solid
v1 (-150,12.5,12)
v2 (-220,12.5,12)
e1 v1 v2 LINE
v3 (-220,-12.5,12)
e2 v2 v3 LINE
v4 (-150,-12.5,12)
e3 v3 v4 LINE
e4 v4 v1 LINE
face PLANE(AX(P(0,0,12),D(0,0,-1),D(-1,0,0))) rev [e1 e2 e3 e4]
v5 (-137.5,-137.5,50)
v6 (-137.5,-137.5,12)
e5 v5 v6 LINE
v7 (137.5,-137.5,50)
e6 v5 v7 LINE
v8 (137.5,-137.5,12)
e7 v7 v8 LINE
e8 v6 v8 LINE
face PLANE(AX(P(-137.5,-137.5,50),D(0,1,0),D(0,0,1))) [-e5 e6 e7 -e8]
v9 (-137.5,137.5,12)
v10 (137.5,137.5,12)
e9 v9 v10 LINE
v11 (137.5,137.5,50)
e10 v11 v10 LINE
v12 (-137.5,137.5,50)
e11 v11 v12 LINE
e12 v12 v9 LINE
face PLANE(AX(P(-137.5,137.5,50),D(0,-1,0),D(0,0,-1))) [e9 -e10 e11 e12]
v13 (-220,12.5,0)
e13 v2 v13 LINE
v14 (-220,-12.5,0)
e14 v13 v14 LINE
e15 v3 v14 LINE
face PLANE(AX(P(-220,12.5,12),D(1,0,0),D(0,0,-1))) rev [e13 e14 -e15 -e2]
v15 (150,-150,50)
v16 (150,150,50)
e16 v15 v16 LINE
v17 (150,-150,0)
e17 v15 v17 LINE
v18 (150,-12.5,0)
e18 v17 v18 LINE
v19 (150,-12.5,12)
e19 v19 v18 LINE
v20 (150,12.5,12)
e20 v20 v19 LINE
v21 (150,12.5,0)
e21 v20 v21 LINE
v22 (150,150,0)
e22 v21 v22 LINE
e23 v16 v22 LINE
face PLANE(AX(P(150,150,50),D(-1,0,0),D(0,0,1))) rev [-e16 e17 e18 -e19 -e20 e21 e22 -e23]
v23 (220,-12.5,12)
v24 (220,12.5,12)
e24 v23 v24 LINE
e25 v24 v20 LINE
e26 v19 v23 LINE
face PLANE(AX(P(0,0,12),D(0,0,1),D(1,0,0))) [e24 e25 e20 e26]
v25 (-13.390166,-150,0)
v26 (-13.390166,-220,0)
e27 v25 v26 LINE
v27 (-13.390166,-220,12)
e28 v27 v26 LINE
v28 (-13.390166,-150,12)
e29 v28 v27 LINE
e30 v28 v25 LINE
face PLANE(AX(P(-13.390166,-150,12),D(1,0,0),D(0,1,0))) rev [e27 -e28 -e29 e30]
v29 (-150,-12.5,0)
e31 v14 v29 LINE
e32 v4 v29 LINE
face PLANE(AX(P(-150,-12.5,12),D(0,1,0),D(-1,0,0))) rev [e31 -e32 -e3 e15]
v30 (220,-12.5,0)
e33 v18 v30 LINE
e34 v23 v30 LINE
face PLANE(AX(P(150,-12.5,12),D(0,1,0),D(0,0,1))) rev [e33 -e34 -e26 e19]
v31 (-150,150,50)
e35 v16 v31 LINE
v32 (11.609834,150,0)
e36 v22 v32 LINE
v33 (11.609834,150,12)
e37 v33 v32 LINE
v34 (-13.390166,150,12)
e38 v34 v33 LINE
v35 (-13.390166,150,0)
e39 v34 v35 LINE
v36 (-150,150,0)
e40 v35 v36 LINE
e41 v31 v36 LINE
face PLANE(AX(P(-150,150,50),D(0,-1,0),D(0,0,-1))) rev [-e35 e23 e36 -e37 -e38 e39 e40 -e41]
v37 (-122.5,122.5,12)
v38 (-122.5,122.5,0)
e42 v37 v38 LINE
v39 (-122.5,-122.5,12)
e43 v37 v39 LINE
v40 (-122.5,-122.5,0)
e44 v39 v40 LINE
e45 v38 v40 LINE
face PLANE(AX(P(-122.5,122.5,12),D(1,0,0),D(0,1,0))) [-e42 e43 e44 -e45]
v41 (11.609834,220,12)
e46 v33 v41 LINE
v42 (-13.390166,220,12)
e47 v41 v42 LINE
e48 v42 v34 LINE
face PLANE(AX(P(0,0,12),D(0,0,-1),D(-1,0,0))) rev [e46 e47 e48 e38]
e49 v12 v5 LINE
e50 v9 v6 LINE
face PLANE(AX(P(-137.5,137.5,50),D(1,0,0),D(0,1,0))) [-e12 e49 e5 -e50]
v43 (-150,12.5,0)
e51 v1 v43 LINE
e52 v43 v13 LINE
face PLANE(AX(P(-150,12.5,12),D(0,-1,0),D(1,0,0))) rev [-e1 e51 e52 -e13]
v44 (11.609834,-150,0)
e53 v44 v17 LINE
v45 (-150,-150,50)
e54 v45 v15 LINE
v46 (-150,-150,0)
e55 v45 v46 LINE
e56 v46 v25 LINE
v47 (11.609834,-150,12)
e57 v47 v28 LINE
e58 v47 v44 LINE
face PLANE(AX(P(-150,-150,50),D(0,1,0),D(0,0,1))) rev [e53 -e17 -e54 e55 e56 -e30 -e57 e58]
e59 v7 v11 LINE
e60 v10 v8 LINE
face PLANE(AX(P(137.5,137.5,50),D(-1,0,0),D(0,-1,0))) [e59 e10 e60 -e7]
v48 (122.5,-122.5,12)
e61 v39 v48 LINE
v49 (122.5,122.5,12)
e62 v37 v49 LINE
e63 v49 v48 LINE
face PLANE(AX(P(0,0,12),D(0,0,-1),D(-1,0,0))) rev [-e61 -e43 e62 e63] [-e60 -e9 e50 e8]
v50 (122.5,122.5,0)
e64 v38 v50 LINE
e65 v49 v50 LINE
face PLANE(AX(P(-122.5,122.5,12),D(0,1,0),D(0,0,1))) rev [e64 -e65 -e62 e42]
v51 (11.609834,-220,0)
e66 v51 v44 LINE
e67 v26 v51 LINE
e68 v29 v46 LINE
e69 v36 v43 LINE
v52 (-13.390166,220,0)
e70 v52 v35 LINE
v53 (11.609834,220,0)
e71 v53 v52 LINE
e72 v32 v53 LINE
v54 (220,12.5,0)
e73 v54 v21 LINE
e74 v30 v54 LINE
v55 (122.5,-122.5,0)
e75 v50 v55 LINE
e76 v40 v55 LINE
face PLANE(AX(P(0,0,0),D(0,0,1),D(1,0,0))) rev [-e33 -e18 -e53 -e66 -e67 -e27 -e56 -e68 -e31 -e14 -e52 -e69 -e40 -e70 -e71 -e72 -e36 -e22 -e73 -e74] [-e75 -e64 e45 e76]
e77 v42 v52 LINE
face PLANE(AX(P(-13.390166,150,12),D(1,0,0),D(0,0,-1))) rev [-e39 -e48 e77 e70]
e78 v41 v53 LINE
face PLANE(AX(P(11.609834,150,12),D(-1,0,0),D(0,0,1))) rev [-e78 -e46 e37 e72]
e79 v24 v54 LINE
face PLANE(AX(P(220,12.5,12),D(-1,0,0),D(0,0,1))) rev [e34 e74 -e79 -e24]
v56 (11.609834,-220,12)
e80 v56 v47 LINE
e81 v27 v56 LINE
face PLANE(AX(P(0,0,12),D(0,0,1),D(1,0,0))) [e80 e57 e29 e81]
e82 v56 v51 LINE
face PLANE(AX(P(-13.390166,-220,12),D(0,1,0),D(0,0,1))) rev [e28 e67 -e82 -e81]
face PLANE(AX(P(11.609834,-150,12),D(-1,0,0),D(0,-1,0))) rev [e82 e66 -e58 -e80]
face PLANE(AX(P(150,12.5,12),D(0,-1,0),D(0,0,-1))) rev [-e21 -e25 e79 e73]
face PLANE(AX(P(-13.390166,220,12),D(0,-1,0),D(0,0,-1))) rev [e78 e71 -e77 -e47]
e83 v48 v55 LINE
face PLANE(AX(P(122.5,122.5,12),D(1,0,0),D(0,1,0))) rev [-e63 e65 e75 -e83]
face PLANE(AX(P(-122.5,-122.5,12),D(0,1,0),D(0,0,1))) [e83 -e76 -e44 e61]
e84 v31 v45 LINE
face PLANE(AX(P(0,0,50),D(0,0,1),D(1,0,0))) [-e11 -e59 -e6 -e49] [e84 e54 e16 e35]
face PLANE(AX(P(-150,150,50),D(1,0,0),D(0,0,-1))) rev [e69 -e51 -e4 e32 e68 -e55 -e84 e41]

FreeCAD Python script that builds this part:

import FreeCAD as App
import Part
import Sketcher
Q = App.Units.Quantity

doc = App.newDocument("Part")
params = doc.addObject("Spreadsheet::Sheet", "Params")
for row, (alias, value) in enumerate([
    ("sketch1_width", "300 mm"),
    ("sketch1_width2", "275 mm"),
    ("pad1_length", "50 mm"),
    ("sketch2_width", "275 mm"),
    ("sketch2_width2", "245 mm"),
    ("pad2_length", "12 mm"),
    ("sketch3_width", "25 mm"),
    ("sketch3_width2", "70 mm"),
    ("pad3_length", "12 mm"),
], start=1):
    params.set(f"A{row}", alias)
    params.set(f"B{row}", "=" + value)
    params.setAlias(f"B{row}", alias)

body = doc.addObject("PartDesign::Body", "Body")

sketch1 = doc.addObject("Sketcher::SketchObject", "Sketch")
body.addObject(sketch1)
sketch1.AttachmentSupport = (doc.XY_Plane, [""])
sketch1.MapMode = "FlatFace"
sketch1.addGeometry([
    Part.LineSegment(App.Vector(-150, 150, 0), App.Vector(-150, -150, 0)),
    Part.LineSegment(App.Vector(-150, -150, 0), App.Vector(150, -150, 0)),
    Part.LineSegment(App.Vector(150, -150, 0), App.Vector(150, 150, 0)),
    Part.LineSegment(App.Vector(150, 150, 0), App.Vector(-150, 150, 0)),
    Part.LineSegment(App.Vector(137.5, -137.5, 0), App.Vector(-137.5, -137.5, 0)),
    Part.LineSegment(App.Vector(-137.5, -137.5, 0), App.Vector(-137.5, 137.5, 0)),
    Part.LineSegment(App.Vector(-137.5, 137.5, 0), App.Vector(137.5, 137.5, 0)),
    Part.LineSegment(App.Vector(137.5, 137.5, 0), App.Vector(137.5, -137.5, 0)),
], False)
sketch1.addConstraint([
    Sketcher.Constraint("Coincident", 0, 2, 1, 1),
    Sketcher.Constraint("Coincident", 1, 2, 2, 1),
    Sketcher.Constraint("Coincident", 2, 2, 3, 1),
    Sketcher.Constraint("Coincident", 3, 2, 0, 1),
    Sketcher.Constraint("Coincident", 4, 2, 5, 1),
    Sketcher.Constraint("Coincident", 5, 2, 6, 1),
    Sketcher.Constraint("Coincident", 6, 2, 7, 1),
    Sketcher.Constraint("Coincident", 7, 2, 4, 1),
    Sketcher.Constraint("Vertical", 0),
    Sketcher.Constraint("Horizontal", 1),
    Sketcher.Constraint("Vertical", 2),
    Sketcher.Constraint("Horizontal", 3),
    Sketcher.Constraint("Horizontal", 4),
    Sketcher.Constraint("Vertical", 5),
    Sketcher.Constraint("Horizontal", 6),
    Sketcher.Constraint("Vertical", 7),
    Sketcher.Constraint("Symmetric", 0, 2, 2, 2, -1, 1),
    Sketcher.Constraint("Symmetric", 4, 2, 6, 2, -1, 1),
    Sketcher.Constraint("Equal", 3, 0),
    Sketcher.Constraint("Equal", 6, 5),
    Sketcher.Constraint("DistanceX", 1, 1, 1, 2, Q("300 mm")),
    Sketcher.Constraint("DistanceX", 4, 2, 4, 1, Q("275 mm")),
])
sketch1.setExpression("Constraints[20]", "Params.sketch1_width")
sketch1.setExpression("Constraints[21]", "Params.sketch1_width2")
pad1 = doc.addObject("PartDesign::Pad", "Pad")
body.addObject(pad1)
pad1.Profile = sketch1
pad1.setExpression("Length", "Params.pad1_length")

sketch2 = doc.addObject("Sketcher::SketchObject", "Sketch001")
body.addObject(sketch2)
sketch2.AttachmentSupport = (doc.XY_Plane, [""])
sketch2.MapMode = "FlatFace"
sketch2.addGeometry([
    Part.LineSegment(App.Vector(-137.5, 137.5, 0), App.Vector(-137.5, -137.5, 0)),
    Part.LineSegment(App.Vector(-137.5, -137.5, 0), App.Vector(137.5, -137.5, 0)),
    Part.LineSegment(App.Vector(137.5, -137.5, 0), App.Vector(137.5, 137.5, 0)),
    Part.LineSegment(App.Vector(137.5, 137.5, 0), App.Vector(-137.5, 137.5, 0)),
    Part.LineSegment(App.Vector(122.5, -122.5, 0), App.Vector(-122.5, -122.5, 0)),
    Part.LineSegment(App.Vector(-122.5, -122.5, 0), App.Vector(-122.5, 122.5, 0)),
    Part.LineSegment(App.Vector(-122.5, 122.5, 0), App.Vector(122.5, 122.5, 0)),
    Part.LineSegment(App.Vector(122.5, 122.5, 0), App.Vector(122.5, -122.5, 0)),
], False)
sketch2.addConstraint([
    Sketcher.Constraint("Coincident", 0, 2, 1, 1),
    Sketcher.Constraint("Coincident", 1, 2, 2, 1),
    Sketcher.Constraint("Coincident", 2, 2, 3, 1),
    Sketcher.Constraint("Coincident", 3, 2, 0, 1),
    Sketcher.Constraint("Coincident", 4, 2, 5, 1),
    Sketcher.Constraint("Coincident", 5, 2, 6, 1),
    Sketcher.Constraint("Coincident", 6, 2, 7, 1),
    Sketcher.Constraint("Coincident", 7, 2, 4, 1),
    Sketcher.Constraint("Vertical", 0),
    Sketcher.Constraint("Horizontal", 1),
    Sketcher.Constraint("Vertical", 2),
    Sketcher.Constraint("Horizontal", 3),
    Sketcher.Constraint("Horizontal", 4),
    Sketcher.Constraint("Vertical", 5),
    Sketcher.Constraint("Horizontal", 6),
    Sketcher.Constraint("Vertical", 7),
    Sketcher.Constraint("Symmetric", 0, 2, 2, 2, -1, 1),
    Sketcher.Constraint("Symmetric", 4, 2, 6, 2, -1, 1),
    Sketcher.Constraint("Equal", 3, 0),
    Sketcher.Constraint("Equal", 6, 5),
    Sketcher.Constraint("DistanceX", 1, 1, 1, 2, Q("275 mm")),
    Sketcher.Constraint("DistanceX", 4, 2, 4, 1, Q("245 mm")),
])
sketch2.setExpression("Constraints[20]", "Params.sketch2_width")
sketch2.setExpression("Constraints[21]", "Params.sketch2_width2")
pad2 = doc.addObject("PartDesign::Pad", "Pad001")
body.addObject(pad2)
pad2.Profile = sketch2
pad2.setExpression("Length", "Params.pad2_length")

sketch3 = doc.addObject("Sketcher::SketchObject", "Sketch002")
body.addObject(sketch3)
sketch3.AttachmentSupport = (doc.XY_Plane, [""])
sketch3.MapMode = "FlatFace"
sketch3.addGeometry([
    Part.LineSegment(App.Vector(-13.390166, 220, 0), App.Vector(-13.390166, 150, 0)),
    Part.LineSegment(App.Vector(-13.390166, 150, 0), App.Vector(11.609834, 150, 0)),
    Part.LineSegment(App.Vector(11.609834, 150, 0), App.Vector(11.609834, 220, 0)),
    Part.LineSegment(App.Vector(11.609834, 220, 0), App.Vector(-13.390166, 220, 0)),
    Part.LineSegment(App.Vector(150, 12.5, 0), App.Vector(150, -12.5, 0)),
    Part.LineSegment(App.Vector(150, -12.5, 0), App.Vector(220, -12.5, 0)),
    Part.LineSegment(App.Vector(220, -12.5, 0), App.Vector(220, 12.5, 0)),
    Part.LineSegment(App.Vector(220, 12.5, 0), App.Vector(150, 12.5, 0)),
    Part.LineSegment(App.Vector(-220, 12.5, 0), App.Vector(-220, -12.5, 0)),
    Part.LineSegment(App.Vector(-220, -12.5, 0), App.Vector(-150, -12.5, 0)),
    Part.LineSegment(App.Vector(-150, -12.5, 0), App.Vector(-150, 12.5, 0)),
    Part.LineSegment(App.Vector(-150, 12.5, 0), App.Vector(-220, 12.5, 0)),
    Part.LineSegment(App.Vector(-13.390166, -150, 0), App.Vector(-13.390166, -220, 0)),
    Part.LineSegment(App.Vector(-13.390166, -220, 0), App.Vector(11.609834, -220, 0)),
    Part.LineSegment(App.Vector(11.609834, -220, 0), App.Vector(11.609834, -150, 0)),
    Part.LineSegment(App.Vector(11.609834, -150, 0), App.Vector(-13.390166, -150, 0)),
], False)
sketch3.addConstraint([
    Sketcher.Constraint("Coincident", 0, 2, 1, 1),
    Sketcher.Constraint("Coincident", 1, 2, 2, 1),
    Sketcher.Constraint("Coincident", 2, 2, 3, 1),
    Sketcher.Constraint("Coincident", 3, 2, 0, 1),
    Sketcher.Constraint("Coincident", 4, 2, 5, 1),
    Sketcher.Constraint("Coincident", 5, 2, 6, 1),
    Sketcher.Constraint("Coincident", 6, 2, 7, 1),
    Sketcher.Constraint("Coincident", 7, 2, 4, 1),
    Sketcher.Constraint("Coincident", 8, 2, 9, 1),
    Sketcher.Constraint("Coincident", 9, 2, 10, 1),
    Sketcher.Constraint("Coincident", 10, 2, 11, 1),
    Sketcher.Constraint("Coincident", 11, 2, 8, 1),
    Sketcher.Constraint("Coincident", 12, 2, 13, 1),
    Sketcher.Constraint("Coincident", 13, 2, 14, 1),
    Sketcher.Constraint("Coincident", 14, 2, 15, 1),
    Sketcher.Constraint("Coincident", 15, 2, 12, 1),
    Sketcher.Constraint("Vertical", 0),
    Sketcher.Constraint("Horizontal", 1),
    Sketcher.Constraint("Vertical", 2),
    Sketcher.Constraint("Horizontal", 3),
    Sketcher.Constraint("Vertical", 4),
    Sketcher.Constraint("Horizontal", 5),
    Sketcher.Constraint("Vertical", 6),
    Sketcher.Constraint("Horizontal", 7),
    Sketcher.Constraint("Vertical", 8),
    Sketcher.Constraint("Horizontal", 9),
    Sketcher.Constraint("Vertical", 10),
    Sketcher.Constraint("Horizontal", 11),
    Sketcher.Constraint("Vertical", 12),
    Sketcher.Constraint("Horizontal", 13),
    Sketcher.Constraint("Vertical", 14),
    Sketcher.Constraint("Horizontal", 15),
    Sketcher.Constraint("Symmetric", 6, 2, 8, 2, -1, 1),
    Sketcher.Constraint("Symmetric", 4, 2, 10, 2, -1, 1),
    Sketcher.Constraint("Symmetric", 3, 2, 12, 2, -1),
    Sketcher.Constraint("Symmetric", 1, 2, 14, 2, -1),
    Sketcher.Constraint("Horizontal", 5, 2, 8, 2),
    Sketcher.Constraint("Equal", 11, 0),
    Sketcher.Constraint("Equal", 15, 4),
    Sketcher.Constraint("DistanceX", 1, 1, 1, 2, Q("25 mm")),
    Sketcher.Constraint("DistanceX", 5, 1, 5, 2, Q("70 mm")),
    Sketcher.Constraint("DistanceY", -1, 1, 0, 2, Q("150 mm")),
    Sketcher.Constraint("DistanceX", -1, 1, 4, 2, Q("150 mm")),
    Sketcher.Constraint("DistanceX", 0, 2, -1, 1, Q("13.390166 mm")),
])
sketch3.setExpression("Constraints[39]", "Params.sketch3_width")
sketch3.setExpression("Constraints[40]", "Params.sketch3_width2")
pad3 = doc.addObject("PartDesign::Pad", "Pad002")
body.addObject(pad3)
pad3.Profile = sketch3
pad3.setExpression("Length", "Params.pad3_length")

doc.recompute()
